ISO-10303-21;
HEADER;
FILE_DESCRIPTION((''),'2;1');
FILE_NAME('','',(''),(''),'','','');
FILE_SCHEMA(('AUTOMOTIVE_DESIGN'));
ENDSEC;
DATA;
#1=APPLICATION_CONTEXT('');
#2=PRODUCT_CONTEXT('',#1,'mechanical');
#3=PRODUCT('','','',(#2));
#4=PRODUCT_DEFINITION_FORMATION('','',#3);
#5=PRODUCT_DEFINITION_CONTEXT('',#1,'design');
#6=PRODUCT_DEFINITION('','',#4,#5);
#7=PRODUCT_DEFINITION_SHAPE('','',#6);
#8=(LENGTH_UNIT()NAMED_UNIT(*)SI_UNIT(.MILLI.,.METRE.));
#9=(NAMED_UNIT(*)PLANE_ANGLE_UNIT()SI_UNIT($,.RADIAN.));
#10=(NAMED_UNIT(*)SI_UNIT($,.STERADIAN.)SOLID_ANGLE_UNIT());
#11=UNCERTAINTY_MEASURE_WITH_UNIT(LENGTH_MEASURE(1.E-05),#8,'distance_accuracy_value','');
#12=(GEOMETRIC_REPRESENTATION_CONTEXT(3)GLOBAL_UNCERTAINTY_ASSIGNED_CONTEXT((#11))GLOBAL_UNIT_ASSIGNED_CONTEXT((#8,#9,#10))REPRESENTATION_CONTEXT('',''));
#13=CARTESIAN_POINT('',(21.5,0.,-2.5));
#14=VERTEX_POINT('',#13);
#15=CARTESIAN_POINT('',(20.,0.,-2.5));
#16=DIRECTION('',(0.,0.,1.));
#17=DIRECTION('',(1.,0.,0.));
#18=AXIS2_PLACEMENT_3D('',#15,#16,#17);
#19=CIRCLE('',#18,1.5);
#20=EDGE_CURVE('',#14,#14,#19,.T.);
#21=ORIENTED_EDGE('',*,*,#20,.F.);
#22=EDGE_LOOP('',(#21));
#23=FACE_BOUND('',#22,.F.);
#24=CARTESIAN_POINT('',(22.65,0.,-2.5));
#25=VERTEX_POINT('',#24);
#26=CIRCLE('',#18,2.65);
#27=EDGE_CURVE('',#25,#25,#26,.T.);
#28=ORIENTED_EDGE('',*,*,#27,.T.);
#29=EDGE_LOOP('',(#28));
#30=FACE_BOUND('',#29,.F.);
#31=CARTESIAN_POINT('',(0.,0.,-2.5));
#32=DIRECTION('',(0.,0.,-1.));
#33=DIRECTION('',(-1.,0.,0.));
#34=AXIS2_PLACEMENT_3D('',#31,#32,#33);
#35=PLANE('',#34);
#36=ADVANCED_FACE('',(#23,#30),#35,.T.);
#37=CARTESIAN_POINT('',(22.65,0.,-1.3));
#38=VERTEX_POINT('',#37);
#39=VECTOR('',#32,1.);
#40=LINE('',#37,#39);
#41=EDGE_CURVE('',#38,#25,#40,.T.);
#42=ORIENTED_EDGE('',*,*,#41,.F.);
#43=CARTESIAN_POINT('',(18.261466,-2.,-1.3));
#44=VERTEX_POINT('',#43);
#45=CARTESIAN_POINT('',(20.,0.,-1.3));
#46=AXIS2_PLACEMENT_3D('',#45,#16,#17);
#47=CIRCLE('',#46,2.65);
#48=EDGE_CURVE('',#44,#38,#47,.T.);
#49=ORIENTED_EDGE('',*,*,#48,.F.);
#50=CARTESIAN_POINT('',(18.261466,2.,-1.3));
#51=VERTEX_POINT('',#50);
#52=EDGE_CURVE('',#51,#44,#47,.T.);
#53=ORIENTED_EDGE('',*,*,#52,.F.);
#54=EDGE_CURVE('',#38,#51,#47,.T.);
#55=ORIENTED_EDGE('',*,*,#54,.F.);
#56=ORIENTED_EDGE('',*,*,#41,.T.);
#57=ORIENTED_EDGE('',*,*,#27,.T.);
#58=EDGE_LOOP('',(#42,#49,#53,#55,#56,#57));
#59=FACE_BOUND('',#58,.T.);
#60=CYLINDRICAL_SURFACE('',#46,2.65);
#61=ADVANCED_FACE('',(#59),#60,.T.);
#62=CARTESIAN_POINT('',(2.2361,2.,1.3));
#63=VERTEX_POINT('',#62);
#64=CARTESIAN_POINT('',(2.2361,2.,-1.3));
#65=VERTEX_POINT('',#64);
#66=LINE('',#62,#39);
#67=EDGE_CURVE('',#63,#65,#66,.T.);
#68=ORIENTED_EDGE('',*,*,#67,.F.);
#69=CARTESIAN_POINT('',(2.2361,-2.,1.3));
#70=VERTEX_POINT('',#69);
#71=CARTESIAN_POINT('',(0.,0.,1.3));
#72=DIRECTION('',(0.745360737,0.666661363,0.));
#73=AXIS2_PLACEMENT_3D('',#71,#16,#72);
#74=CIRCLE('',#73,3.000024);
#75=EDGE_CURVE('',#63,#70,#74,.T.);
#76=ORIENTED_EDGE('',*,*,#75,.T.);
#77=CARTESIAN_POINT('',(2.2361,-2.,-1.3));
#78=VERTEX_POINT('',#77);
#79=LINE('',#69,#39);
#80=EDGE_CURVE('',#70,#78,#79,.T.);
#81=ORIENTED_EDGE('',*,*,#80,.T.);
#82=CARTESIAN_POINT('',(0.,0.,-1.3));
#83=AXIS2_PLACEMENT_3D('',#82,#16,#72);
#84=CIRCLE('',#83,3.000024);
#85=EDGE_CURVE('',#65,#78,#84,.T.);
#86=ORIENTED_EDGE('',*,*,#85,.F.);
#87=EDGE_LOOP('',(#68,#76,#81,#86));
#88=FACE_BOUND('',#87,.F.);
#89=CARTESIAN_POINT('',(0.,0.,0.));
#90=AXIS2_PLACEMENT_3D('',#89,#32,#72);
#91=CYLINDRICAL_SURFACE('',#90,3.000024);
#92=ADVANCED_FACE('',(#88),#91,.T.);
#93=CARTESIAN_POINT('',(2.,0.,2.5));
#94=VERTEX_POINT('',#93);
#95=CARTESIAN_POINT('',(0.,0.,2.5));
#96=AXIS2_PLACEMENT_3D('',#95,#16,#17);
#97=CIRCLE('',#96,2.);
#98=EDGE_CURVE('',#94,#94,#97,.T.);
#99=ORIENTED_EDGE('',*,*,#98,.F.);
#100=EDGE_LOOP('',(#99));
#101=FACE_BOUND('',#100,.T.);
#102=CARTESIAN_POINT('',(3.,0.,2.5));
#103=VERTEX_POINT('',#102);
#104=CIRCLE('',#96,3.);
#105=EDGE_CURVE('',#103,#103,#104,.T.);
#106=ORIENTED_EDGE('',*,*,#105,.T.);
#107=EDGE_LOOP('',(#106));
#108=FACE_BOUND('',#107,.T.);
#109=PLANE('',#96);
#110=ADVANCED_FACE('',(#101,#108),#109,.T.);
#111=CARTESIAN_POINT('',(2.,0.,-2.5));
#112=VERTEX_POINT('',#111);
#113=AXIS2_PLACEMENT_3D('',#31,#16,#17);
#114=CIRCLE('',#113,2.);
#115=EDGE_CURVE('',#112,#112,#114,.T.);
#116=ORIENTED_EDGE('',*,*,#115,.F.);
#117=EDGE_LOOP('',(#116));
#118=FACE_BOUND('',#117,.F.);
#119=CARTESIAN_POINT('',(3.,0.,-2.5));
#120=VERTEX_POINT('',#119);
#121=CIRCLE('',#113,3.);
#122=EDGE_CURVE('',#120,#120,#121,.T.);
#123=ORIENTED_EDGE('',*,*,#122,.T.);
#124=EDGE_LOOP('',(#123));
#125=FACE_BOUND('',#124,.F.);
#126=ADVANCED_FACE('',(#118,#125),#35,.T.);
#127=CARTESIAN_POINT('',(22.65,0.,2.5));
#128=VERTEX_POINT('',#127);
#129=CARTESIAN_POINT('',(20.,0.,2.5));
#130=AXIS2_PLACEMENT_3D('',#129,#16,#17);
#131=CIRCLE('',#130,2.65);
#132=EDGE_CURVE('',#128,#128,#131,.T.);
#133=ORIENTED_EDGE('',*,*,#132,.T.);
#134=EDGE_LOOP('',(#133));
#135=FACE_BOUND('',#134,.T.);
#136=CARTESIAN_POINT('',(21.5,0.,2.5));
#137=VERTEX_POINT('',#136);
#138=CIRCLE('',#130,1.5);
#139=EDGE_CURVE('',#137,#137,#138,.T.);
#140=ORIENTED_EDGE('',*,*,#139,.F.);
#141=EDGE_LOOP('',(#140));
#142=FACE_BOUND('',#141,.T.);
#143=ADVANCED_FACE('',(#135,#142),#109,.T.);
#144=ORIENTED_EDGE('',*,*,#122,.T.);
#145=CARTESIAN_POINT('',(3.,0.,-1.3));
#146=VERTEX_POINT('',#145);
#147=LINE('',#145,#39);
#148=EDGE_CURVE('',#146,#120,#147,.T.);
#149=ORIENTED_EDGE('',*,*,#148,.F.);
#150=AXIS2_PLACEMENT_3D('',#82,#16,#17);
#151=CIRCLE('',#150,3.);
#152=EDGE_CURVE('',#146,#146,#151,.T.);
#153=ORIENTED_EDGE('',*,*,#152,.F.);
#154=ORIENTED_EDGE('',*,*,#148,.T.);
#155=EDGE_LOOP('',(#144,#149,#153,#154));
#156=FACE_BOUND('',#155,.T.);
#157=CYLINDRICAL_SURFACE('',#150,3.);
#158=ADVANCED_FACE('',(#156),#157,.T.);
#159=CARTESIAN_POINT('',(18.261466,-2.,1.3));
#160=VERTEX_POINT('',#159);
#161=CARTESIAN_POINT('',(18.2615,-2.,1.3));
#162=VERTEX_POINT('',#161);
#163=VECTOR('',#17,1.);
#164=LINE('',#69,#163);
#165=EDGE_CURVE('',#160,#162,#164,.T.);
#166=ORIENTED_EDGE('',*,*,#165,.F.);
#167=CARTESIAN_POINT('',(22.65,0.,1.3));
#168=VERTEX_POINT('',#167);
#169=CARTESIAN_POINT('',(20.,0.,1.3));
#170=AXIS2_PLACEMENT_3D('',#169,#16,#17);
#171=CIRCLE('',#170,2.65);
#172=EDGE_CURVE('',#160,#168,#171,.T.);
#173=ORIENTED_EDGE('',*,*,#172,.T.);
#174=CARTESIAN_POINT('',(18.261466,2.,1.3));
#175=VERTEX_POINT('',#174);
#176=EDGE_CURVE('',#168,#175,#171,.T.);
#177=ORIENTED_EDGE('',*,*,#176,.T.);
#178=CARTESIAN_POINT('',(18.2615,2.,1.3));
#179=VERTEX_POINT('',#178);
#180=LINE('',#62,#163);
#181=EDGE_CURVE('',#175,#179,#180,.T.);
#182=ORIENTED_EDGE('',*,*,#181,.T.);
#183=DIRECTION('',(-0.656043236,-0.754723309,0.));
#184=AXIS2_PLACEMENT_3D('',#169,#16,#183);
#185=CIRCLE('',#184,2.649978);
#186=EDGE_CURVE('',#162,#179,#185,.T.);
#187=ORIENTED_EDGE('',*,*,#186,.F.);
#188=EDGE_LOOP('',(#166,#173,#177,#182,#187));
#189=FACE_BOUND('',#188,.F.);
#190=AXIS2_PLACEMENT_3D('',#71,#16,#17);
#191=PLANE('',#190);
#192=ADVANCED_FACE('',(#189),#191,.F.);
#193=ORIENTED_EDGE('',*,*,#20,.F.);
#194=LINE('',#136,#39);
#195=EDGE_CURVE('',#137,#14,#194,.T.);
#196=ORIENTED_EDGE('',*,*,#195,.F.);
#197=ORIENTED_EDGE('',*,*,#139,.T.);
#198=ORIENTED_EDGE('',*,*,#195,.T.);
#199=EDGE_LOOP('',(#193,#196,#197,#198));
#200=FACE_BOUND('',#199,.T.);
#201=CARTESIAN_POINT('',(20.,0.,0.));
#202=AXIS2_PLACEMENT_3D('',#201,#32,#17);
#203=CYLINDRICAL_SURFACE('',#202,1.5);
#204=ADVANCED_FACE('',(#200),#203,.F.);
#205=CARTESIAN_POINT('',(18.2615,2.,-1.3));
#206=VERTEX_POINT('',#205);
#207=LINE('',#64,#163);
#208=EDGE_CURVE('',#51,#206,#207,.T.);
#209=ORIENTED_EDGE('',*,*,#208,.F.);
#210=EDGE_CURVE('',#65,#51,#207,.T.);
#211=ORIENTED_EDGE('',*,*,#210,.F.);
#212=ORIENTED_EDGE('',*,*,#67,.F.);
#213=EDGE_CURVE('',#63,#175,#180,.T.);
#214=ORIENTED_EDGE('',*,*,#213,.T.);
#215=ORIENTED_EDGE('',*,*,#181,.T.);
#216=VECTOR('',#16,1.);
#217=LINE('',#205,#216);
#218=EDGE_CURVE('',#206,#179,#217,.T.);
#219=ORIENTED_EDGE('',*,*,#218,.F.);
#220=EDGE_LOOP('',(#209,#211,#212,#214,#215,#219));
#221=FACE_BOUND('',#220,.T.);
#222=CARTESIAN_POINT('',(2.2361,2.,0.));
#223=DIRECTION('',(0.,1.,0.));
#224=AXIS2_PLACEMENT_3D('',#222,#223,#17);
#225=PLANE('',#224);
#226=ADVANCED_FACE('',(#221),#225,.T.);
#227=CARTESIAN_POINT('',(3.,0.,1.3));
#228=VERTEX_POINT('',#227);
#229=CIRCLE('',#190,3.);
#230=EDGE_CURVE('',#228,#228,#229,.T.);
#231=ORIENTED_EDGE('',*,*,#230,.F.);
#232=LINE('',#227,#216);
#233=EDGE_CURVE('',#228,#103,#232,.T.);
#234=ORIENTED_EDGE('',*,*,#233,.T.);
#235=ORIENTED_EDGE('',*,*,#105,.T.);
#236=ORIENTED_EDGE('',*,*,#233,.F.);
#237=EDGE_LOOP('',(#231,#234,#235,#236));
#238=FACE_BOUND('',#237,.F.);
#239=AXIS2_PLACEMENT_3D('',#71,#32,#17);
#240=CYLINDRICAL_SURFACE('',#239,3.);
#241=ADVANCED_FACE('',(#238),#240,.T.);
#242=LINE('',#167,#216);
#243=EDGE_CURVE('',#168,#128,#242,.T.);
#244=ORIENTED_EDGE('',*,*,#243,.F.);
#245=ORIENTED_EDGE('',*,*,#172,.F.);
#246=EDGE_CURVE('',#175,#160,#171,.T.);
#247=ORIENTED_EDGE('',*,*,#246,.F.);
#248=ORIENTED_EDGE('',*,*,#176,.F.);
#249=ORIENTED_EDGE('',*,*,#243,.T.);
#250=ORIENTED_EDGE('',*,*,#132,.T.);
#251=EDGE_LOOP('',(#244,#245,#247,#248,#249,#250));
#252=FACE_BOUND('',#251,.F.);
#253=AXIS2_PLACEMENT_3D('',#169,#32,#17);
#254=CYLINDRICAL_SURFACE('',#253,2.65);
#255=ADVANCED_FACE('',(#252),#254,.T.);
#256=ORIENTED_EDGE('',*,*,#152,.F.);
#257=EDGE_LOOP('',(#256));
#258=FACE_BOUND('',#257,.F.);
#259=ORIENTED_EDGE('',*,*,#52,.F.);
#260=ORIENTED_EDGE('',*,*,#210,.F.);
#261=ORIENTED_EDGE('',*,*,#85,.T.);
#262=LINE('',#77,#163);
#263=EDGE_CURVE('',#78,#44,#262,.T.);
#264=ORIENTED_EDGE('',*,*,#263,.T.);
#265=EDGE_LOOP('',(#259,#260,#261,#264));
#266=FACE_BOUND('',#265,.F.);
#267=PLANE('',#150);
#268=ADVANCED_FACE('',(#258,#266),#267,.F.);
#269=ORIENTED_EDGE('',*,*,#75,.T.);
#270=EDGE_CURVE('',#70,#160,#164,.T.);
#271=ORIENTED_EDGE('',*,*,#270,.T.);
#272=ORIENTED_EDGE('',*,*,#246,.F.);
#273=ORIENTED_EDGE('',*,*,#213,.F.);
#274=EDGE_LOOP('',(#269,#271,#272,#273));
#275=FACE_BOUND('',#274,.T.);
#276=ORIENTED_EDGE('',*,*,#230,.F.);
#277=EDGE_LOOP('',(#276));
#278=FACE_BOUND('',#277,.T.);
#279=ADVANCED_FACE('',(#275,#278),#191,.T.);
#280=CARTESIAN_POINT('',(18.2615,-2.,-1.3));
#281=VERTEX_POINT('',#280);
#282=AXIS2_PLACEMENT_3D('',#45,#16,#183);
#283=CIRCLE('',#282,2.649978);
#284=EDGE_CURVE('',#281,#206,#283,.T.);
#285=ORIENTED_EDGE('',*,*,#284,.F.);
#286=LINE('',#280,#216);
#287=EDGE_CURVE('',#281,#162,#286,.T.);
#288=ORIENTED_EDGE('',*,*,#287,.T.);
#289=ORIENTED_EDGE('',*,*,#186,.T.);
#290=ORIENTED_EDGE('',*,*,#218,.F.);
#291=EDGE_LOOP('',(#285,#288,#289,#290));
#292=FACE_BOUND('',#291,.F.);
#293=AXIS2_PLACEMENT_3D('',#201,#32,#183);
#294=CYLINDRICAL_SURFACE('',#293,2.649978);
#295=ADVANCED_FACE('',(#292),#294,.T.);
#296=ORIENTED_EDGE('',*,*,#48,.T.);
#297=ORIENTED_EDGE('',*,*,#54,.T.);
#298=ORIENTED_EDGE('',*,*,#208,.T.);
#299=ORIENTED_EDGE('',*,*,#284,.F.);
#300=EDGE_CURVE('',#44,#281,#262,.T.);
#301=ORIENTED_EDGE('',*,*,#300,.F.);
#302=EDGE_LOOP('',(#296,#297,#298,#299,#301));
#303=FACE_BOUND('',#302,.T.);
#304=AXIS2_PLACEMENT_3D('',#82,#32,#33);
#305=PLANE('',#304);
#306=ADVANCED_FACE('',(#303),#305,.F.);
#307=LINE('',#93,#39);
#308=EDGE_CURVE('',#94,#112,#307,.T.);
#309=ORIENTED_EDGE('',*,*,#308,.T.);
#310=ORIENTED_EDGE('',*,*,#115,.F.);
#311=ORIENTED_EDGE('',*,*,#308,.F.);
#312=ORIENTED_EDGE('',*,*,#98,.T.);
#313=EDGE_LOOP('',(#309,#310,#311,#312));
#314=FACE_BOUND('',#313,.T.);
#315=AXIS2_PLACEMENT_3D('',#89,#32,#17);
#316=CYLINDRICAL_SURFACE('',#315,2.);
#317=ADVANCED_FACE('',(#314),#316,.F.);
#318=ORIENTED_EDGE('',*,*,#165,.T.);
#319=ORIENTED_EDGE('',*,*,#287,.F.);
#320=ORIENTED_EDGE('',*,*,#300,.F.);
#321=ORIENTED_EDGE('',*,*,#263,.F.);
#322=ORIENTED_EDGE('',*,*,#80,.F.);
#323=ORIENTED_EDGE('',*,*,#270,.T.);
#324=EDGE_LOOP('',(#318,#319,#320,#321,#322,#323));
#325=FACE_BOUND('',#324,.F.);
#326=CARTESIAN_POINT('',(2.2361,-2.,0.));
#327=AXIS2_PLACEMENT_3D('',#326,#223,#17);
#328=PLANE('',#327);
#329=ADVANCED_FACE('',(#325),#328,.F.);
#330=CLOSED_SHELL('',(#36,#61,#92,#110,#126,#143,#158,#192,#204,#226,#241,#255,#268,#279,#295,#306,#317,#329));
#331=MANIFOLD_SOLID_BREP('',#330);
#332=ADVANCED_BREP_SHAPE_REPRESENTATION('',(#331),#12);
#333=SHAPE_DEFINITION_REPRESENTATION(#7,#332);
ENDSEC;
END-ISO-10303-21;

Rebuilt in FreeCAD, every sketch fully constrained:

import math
import FreeCAD as App
import Part
import Sketcher
from FreeCAD import Vector
Q = App.Units.Quantity

doc = App.newDocument("Part")
params = doc.addObject("Spreadsheet::Sheet", "Params")
for row, (alias, value) in enumerate([
    ("sketch1_diameter", "4 mm"),
    ("sketch1_diameter2", "3 mm"),
    ("sketch1_radius", "3 mm"),
    ("sketch1_radius2", "2.65 mm"),
    ("pad1_length", "2.6 mm"),
    ("sketch2_diameter", "6 mm"),
    ("sketch2_diameter2", "4 mm"),
    ("sketch2_diameter3", "3 mm"),
    ("sketch2_diameter4", "5.3 mm"),
    ("pad2_length", "1.2 mm"),
], start=1):
    params.set(f"A{row}", alias)
    params.set(f"B{row}", "=" + value)
    params.setAlias(f"B{row}", alias)

body = doc.addObject("PartDesign::Body", "Body")

# Sketch on XY plane
sketch1 = body.newObject("Sketcher::SketchObject", "Sketch")
sketch1.AttachmentSupport = (doc.getObject("XY_Plane"), [""])
sketch1.MapMode = "FlatFace"
sketch1.addGeometry([
    Part.LineSegment(Vector(2.2361, -2, 0), Vector(18.2615, -2, 0)),  # 0
    Part.ArcOfCircle(Part.Circle(Vector(20, 0, 0), Vector(0, 0, 1), 2.649978), math.radians(-130.998801), math.radians(130.998801)),  # 1
    Part.LineSegment(Vector(18.2615, 2, 0), Vector(2.2361, 2, 0)),  # 2
    Part.ArcOfCircle(Part.Circle(Vector(0, 0, 0), Vector(0, 0, 1), 3.000024), math.radians(41.809907), math.radians(318.190093)),  # 3
    Part.Circle(Vector(0, 0, 0), Vector(0, 0, 1), 2),  # 4
    Part.Circle(Vector(20, 0, 0), Vector(0, 0, 1), 1.5),  # 5
], False)
sketch1.addConstraint([
    Sketcher.Constraint("Coincident", 0, 2, 1, 1),
    Sketcher.Constraint("Coincident", 1, 2, 2, 1),
    Sketcher.Constraint("Coincident", 2, 2, 3, 1),
    Sketcher.Constraint("Coincident", 3, 2, 0, 1),
    Sketcher.Constraint("Horizontal", 0),
    Sketcher.Constraint("Horizontal", 2),
    Sketcher.Constraint("Coincident", 3, 3, -1, 1),
    Sketcher.Constraint("Coincident", 4, 3, -1, 1),
    Sketcher.Constraint("Coincident", 5, 3, 1, 3),
    Sketcher.Constraint("Symmetric", 0, 2, 1, 2, -1),
    Sketcher.Constraint("Diameter", 4, Q("4 mm")),
    Sketcher.Constraint("Diameter", 5, Q("3 mm")),
    Sketcher.Constraint("Radius", 3, Q("3 mm")),
    Sketcher.Constraint("Radius", 1, Q("2.65 mm")),
    Sketcher.Constraint("DistanceX", -1, 1, 1, 3, Q("20 mm")),
    Sketcher.Constraint("DistanceY", 0, 2, -1, 1, Q("2 mm")),
])
sketch1.setExpression("Constraints[10]", "Params.sketch1_diameter")
sketch1.setExpression("Constraints[11]", "Params.sketch1_diameter2")
sketch1.setExpression("Constraints[12]", "Params.sketch1_radius")
sketch1.setExpression("Constraints[13]", "Params.sketch1_radius2")
pad1 = body.newObject("PartDesign::Pad", "Pad")
pad1.Profile = sketch1
pad1.setExpression("Length", "Params.pad1_length")
pad1.Midplane = True

# Sketch on XY plane
sketch2 = body.newObject("Sketcher::SketchObject", "Sketch001")
sketch2.AttachmentSupport = (doc.getObject("XY_Plane"), [""])
sketch2.MapMode = "FlatFace"
sketch2.AttachmentOffset = App.Placement(Vector(0, 0, 1.3), App.Rotation())
sketch2.addGeometry([
    Part.Circle(Vector(0, 0, 0), Vector(0, 0, 1), 3),
    Part.Circle(Vector(0, 0, 0), Vector(0, 0, 1), 2),
    Part.Circle(Vector(20, 0, 0), Vector(0, 0, 1), 2.65),
    Part.Circle(Vector(20, 0, 0), Vector(0, 0, 1), 1.5),
], False)
sketch2.addConstraint([
    Sketcher.Constraint("Coincident", 0, 3, -1, 1),
    Sketcher.Constraint("Coincident", 1, 3, -1, 1),
    Sketcher.Constraint("Coincident", 3, 3, 2, 3),
    Sketcher.Constraint("PointOnObject", 2, 3, -1),
    Sketcher.Constraint("Diameter", 0, Q("6 mm")),
    Sketcher.Constraint("Diameter", 1, Q("4 mm")),
    Sketcher.Constraint("Diameter", 3, Q("3 mm")),
    Sketcher.Constraint("Diameter", 2, Q("5.3 mm")),
    Sketcher.Constraint("DistanceX", -1, 1, 2, 3, Q("20 mm")),
])
sketch2.setExpression("Constraints[4]", "Params.sketch2_diameter")
sketch2.setExpression("Constraints[5]", "Params.sketch2_diameter2")
sketch2.setExpression("Constraints[6]", "Params.sketch2_diameter3")
sketch2.setExpression("Constraints[7]", "Params.sketch2_diameter4")
pad2 = body.newObject("PartDesign::Pad", "Pad001")
pad2.Profile = sketch2
pad2.setExpression("Length", "Params.pad2_length")
doc.recompute()

mirrored = body.newObject("PartDesign::Mirrored", "Mirrored")
mirrored.Originals = [pad2]
mirrored.MirrorPlane = (doc.getObject("XY_Plane"), [""])
body.Tip = mirrored

doc.recompute()
